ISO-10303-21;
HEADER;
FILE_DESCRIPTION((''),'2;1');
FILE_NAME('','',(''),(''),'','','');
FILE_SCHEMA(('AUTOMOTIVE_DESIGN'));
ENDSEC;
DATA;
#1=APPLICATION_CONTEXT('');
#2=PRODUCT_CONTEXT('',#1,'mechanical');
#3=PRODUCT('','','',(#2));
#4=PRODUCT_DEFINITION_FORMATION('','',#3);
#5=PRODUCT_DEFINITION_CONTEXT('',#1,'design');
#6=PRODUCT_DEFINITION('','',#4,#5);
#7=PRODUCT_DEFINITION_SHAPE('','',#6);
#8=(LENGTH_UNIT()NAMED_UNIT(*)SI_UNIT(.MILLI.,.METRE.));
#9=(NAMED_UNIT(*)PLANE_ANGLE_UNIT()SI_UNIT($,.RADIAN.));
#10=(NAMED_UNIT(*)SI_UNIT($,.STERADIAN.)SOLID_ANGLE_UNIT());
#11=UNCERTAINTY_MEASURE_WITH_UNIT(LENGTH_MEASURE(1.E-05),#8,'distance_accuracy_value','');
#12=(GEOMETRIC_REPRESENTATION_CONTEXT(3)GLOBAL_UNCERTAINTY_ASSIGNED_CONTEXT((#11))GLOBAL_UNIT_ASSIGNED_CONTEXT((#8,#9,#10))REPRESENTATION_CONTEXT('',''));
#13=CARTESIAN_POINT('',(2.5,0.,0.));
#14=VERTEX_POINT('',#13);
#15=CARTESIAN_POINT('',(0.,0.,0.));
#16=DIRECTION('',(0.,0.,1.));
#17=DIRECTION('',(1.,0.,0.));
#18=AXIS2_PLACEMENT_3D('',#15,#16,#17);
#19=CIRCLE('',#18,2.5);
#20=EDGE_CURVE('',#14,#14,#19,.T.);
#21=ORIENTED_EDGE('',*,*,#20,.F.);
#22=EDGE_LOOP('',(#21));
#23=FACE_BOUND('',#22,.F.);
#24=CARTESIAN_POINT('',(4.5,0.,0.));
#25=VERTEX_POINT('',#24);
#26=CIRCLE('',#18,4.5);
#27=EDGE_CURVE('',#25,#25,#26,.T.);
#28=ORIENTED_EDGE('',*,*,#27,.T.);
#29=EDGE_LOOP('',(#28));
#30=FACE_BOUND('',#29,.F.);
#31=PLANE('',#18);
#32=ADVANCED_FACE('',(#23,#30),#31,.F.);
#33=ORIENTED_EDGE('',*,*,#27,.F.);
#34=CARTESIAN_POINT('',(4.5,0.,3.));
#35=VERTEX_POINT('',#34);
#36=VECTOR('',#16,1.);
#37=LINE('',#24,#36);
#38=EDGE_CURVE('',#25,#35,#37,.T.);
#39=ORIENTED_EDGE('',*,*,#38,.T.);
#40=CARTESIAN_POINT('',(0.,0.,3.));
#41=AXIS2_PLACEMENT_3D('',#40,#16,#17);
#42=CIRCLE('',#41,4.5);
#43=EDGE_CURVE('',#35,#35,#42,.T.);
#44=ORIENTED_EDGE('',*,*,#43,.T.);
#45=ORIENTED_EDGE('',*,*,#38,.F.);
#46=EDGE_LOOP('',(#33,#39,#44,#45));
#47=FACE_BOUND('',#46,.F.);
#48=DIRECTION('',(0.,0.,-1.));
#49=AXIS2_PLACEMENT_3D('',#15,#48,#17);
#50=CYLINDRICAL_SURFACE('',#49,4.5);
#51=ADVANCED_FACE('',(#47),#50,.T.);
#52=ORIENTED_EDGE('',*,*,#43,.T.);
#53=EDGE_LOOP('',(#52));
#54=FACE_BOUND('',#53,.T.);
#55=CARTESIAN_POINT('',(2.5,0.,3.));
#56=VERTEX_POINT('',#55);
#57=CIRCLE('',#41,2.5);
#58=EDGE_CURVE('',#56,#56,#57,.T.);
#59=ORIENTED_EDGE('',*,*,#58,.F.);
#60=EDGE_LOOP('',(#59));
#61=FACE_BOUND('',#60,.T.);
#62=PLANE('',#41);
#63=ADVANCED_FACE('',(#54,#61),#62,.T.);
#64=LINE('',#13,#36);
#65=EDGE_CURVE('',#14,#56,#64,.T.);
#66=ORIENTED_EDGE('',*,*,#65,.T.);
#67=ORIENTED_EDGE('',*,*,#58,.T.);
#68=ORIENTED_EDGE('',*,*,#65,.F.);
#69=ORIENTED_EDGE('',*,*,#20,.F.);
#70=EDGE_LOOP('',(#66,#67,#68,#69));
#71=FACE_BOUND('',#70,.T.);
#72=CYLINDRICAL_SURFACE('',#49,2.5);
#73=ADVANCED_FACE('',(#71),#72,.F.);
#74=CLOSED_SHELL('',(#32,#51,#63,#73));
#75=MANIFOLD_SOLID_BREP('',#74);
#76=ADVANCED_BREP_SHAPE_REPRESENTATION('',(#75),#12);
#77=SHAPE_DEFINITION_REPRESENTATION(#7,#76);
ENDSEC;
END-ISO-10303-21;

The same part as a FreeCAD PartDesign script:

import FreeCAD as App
import Part
import Sketcher

doc = App.newDocument("Part")
params = doc.addObject("Spreadsheet::Sheet", "Params")
for row, (alias, value) in enumerate([
    ("sketch1_diameter", "5 mm"),
    ("sketch1_diameter2", "9 mm"),
    ("pad1_length", "3 mm"),
], start=1):
    params.set(f"A{row}", alias)
    params.set(f"B{row}", "=" + value)
    params.setAlias(f"B{row}", alias)

body = doc.addObject("PartDesign::Body", "Body")

# Sketch on XY plane
sketch1 = doc.addObject("Sketcher::SketchObject", "Sketch")
body.addObject(sketch1)
sketch1.AttachmentSupport = (doc.XY_Plane, [""])
sketch1.MapMode = "FlatFace"
sketch1.addGeometry([
    Part.Circle(App.Vector(0, 0, 0), App.Vector(0, 0, 1), 4.5),
    Part.Circle(App.Vector(0, 0, 0), App.Vector(0, 0, 1), 2.5),
], False)
sketch1.addConstraint([
    Sketcher.Constraint("Coincident", 0, 3, -1, 1),
    Sketcher.Constraint("Coincident", 1, 3, -1, 1),
    Sketcher.Constraint("Diameter", 1, 5.0),
    Sketcher.Constraint("Diameter", 0, 9.0),
])
sketch1.setExpression("Constraints[2]", "Params.sketch1_diameter")
sketch1.setExpression("Constraints[3]", "Params.sketch1_diameter2")
pad1 = doc.addObject("PartDesign::Pad", "Pad")
body.addObject(pad1)
pad1.Profile = sketch1
pad1.setExpression("Length", "Params.pad1_length")

doc.recompute()
